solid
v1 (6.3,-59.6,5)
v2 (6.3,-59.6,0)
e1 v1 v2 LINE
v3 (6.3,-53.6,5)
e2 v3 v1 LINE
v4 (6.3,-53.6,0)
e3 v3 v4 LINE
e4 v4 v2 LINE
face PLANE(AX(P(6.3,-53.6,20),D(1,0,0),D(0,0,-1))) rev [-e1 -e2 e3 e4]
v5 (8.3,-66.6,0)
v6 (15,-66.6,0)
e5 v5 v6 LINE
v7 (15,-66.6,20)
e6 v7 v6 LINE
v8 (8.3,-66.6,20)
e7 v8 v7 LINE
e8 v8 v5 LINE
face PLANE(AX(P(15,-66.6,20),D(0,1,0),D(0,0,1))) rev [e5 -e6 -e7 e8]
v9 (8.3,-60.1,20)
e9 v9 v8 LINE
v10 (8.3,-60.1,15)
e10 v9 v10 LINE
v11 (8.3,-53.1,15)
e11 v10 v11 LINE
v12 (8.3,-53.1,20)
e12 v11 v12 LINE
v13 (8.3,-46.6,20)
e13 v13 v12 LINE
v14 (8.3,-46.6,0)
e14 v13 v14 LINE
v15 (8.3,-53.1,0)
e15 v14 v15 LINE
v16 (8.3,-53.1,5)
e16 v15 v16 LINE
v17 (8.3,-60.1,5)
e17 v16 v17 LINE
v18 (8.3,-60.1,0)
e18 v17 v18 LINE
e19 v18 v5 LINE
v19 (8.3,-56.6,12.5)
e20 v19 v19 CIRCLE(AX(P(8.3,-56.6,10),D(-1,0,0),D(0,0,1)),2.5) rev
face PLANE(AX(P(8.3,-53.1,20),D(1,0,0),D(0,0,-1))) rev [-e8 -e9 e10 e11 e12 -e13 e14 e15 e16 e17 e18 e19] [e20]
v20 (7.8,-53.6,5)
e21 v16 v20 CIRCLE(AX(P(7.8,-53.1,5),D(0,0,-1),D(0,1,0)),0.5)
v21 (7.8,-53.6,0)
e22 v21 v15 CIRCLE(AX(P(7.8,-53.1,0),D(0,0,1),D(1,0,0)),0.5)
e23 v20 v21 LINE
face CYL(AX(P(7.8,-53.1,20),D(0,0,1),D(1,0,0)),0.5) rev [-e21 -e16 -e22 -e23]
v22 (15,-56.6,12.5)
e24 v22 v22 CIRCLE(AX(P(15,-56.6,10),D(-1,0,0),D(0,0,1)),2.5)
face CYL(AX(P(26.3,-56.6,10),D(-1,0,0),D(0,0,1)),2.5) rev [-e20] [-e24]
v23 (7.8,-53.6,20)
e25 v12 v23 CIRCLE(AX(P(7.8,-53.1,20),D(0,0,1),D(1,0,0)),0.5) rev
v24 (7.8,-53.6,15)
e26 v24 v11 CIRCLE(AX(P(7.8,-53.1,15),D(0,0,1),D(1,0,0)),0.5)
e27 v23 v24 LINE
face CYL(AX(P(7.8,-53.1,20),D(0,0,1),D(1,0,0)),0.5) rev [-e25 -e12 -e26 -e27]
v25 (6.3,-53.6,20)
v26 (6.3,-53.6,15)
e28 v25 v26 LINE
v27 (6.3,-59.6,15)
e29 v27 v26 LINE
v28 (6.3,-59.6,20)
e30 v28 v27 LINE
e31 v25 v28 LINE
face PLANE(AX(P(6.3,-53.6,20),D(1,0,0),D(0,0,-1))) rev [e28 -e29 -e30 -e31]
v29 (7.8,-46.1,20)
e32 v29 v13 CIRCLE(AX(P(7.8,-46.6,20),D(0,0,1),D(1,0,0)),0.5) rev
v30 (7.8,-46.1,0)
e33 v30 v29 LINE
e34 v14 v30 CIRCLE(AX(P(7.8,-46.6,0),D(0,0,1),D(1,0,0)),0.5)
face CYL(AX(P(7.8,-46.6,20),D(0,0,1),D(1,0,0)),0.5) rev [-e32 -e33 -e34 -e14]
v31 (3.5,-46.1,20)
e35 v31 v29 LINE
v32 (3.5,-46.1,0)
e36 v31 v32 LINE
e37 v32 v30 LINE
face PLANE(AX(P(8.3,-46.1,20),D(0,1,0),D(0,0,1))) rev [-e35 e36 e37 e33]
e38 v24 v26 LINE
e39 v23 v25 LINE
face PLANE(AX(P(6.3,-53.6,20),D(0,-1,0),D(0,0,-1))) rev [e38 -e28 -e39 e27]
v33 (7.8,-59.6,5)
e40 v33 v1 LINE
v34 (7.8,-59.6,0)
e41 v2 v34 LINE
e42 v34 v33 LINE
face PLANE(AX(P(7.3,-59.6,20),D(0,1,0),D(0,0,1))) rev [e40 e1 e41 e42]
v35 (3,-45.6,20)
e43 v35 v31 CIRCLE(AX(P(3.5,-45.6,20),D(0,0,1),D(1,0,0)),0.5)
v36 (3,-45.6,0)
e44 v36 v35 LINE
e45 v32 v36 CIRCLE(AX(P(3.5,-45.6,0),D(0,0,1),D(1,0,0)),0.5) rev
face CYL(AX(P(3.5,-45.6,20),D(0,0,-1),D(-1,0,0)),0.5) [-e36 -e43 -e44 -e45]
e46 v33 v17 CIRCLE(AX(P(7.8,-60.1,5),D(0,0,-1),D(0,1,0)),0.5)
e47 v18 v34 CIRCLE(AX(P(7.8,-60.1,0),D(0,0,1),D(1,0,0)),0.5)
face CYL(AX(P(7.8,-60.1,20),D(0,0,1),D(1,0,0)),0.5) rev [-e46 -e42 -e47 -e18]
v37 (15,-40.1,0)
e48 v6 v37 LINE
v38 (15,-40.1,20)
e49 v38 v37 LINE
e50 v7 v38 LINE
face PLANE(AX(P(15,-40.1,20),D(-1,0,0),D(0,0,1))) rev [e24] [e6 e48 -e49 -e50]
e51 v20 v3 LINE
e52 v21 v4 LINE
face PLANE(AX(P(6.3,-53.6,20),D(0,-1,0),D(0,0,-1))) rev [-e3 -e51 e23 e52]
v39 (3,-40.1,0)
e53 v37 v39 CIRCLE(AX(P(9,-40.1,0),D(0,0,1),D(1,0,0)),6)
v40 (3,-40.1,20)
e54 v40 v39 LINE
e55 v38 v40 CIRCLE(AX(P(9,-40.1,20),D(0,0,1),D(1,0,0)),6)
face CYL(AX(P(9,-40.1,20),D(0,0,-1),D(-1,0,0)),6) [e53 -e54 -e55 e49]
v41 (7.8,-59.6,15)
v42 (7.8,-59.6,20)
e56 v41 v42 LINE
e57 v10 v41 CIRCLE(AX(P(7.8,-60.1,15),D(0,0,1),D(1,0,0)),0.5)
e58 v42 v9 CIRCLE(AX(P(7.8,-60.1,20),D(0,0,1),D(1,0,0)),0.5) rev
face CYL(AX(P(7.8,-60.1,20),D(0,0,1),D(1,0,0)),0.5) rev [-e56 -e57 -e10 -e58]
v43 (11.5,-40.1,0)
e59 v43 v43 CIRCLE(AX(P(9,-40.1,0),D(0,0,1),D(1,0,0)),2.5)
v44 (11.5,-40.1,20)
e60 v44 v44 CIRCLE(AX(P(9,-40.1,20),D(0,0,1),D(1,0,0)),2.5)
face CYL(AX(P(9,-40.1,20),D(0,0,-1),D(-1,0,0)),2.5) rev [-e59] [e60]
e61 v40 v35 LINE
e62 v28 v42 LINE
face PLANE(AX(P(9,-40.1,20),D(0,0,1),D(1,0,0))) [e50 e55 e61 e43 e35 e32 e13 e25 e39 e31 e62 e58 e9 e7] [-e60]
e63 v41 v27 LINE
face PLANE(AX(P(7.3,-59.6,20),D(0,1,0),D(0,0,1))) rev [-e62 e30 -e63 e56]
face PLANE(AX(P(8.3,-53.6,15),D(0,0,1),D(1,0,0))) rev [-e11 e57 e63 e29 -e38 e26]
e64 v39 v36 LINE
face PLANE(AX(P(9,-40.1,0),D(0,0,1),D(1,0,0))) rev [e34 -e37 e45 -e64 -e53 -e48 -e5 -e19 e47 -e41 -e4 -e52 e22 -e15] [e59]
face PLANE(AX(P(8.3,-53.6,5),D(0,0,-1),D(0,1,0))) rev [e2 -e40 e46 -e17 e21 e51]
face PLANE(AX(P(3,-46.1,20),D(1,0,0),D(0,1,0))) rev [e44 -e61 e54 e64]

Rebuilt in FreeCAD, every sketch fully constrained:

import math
import FreeCAD as App
import Part
import Sketcher

V = App.Vector
Q = App.Units.Quantity


def edges_at(feature, points):
    """Names of the edges that pass closest to the given points."""
    edges = feature.Shape.Edges
    near = lambda p: min(range(len(edges)), key=lambda i: edges[i].distToShape(Part.Vertex(*p))[0])
    return sorted({f"Edge{near(p) + 1}" for p in points})

doc = App.newDocument("Part")
body = doc.addObject("PartDesign::Body", "Body")

# Sketch on XY plane
sketch1 = body.newObject("Sketcher::SketchObject", "Sketch")
sketch1.AttachmentSupport = (doc.getObject("XY_Plane"), [""])
sketch1.MapMode = "FlatFace"
sketch1.addGeometry([
    Part.LineSegment(V(6.3, -53.6, 0), V(6.3, -59.6, 0)),  # 0
    Part.LineSegment(V(6.3, -59.6, 0), V(8.3, -59.6, 0)),  # 1
    Part.LineSegment(V(8.3, -59.6, 0), V(8.3, -66.6, 0)),  # 2
    Part.LineSegment(V(8.3, -66.6, 0), V(15, -66.6, 0)),  # 3
    Part.LineSegment(V(15, -66.6, 0), V(15, -40.1, 0)),  # 4
    Part.ArcOfCircle(Part.Circle(V(9, -40.1, 0), V(0, 0, 1), 6), math.radians(0), math.radians(180)),  # 5
    Part.LineSegment(V(3, -40.1, 0), V(3, -46.1, 0)),  # 6
    Part.LineSegment(V(3, -46.1, 0), V(8.3, -46.1, 0)),  # 7
    Part.LineSegment(V(8.3, -46.1, 0), V(8.3, -53.6, 0)),  # 8
    Part.LineSegment(V(8.3, -53.6, 0), V(6.3, -53.6, 0)),  # 9
    Part.Circle(V(9, -40.1, 0), V(0, 0, 1), 2.5),  # 10
], False)
sketch1.addConstraint([
    Sketcher.Constraint("Coincident", 0, 2, 1, 1),
    Sketcher.Constraint("Coincident", 1, 2, 2, 1),
    Sketcher.Constraint("Coincident", 2, 2, 3, 1),
    Sketcher.Constraint("Coincident", 3, 2, 4, 1),
    Sketcher.Constraint("Tangent", 4, 2, 5, 1),
    Sketcher.Constraint("Tangent", 5, 2, 6, 1),
    Sketcher.Constraint("Coincident", 6, 2, 7, 1),
    Sketcher.Constraint("Coincident", 7, 2, 8, 1),
    Sketcher.Constraint("Coincident", 8, 2, 9, 1),
    Sketcher.Constraint("Coincident", 9, 2, 0, 1),
    Sketcher.Constraint("Vertical", 0),
    Sketcher.Constraint("Horizontal", 1),
    Sketcher.Constraint("Vertical", 2),
    Sketcher.Constraint("Horizontal", 3),
    Sketcher.Constraint("Vertical", 4),
    Sketcher.Constraint("Vertical", 6),
    Sketcher.Constraint("Horizontal", 7),
    Sketcher.Constraint("Vertical", 8),
    Sketcher.Constraint("Horizontal", 9),
    Sketcher.Constraint("Coincident", 10, 3, 5, 3),
    Sketcher.Constraint("Vertical", 2, 2, 7, 2),
    Sketcher.Constraint("Equal", 0, 6),
    Sketcher.Constraint("Diameter", 10, Q("5 mm")),
    Sketcher.Constraint("Radius", 5, Q("6 mm")),
    Sketcher.Constraint("DistanceX", 1, 1, 1, 2, Q("2 mm")),
    Sketcher.Constraint("DistanceY", 0, 2, 0, 1, Q("6 mm")),
    Sketcher.Constraint("DistanceY", 2, 2, 2, 1, Q("7 mm")),
    Sketcher.Constraint("DistanceX", 3, 1, 3, 2, Q("6.7 mm")),
    Sketcher.Constraint("DistanceY", 4, 1, 4, 2, Q("26.5 mm")),
    Sketcher.Constraint("DistanceX", -1, 1, 5, 3, Q("9 mm")),
    Sketcher.Constraint("DistanceY", 5, 3, -1, 1, Q("40.1 mm")),
])
pad1 = body.newObject("PartDesign::Pad", "Pad")
pad1.Profile = sketch1
pad1.Length = 20

# Sketch on YZ plane
sketch2 = body.newObject("Sketcher::SketchObject", "Sketch001")
sketch2.AttachmentSupport = (doc.getObject("YZ_Plane"), [""])
sketch2.MapMode = "FlatFace"
sketch2.AttachmentOffset = App.Placement(V(0, 0, 6.3), App.Rotation())
sketch2.addGeometry(Part.Circle(V(-56.6, 10, 0), V(0, 0, 1), 2.5), False)
sketch2.addConstraint([
    Sketcher.Constraint("Diameter", 0, Q("5 mm")),
    Sketcher.Constraint("DistanceY", -1, 1, 0, 3, Q("10 mm")),
    Sketcher.Constraint("DistanceX", 0, 3, -1, 1, Q("56.6 mm")),
])
pocket1 = body.newObject("PartDesign::Pocket", "Pocket")
pocket1.Profile = sketch2
pocket1.Length = 20
pocket1.Reversed = True

# Sketch on YZ plane
sketch3 = body.newObject("Sketcher::SketchObject", "Sketch002")
sketch3.AttachmentSupport = (doc.getObject("YZ_Plane"), [""])
sketch3.MapMode = "FlatFace"
sketch3.AttachmentOffset = App.Placement(V(0, 0, 6.3), App.Rotation())
sketch3.addGeometry([
    Part.LineSegment(V(-54, 5, 0), V(-60, 5, 0)),
    Part.LineSegment(V(-60, 5, 0), V(-60, 15, 0)),
    Part.LineSegment(V(-60, 15, 0), V(-54, 15, 0)),
    Part.LineSegment(V(-54, 15, 0), V(-54, 5, 0)),
], False)
sketch3.addConstraint([
    Sketcher.Constraint("Coincident", 0, 2, 1, 1),
    Sketcher.Constraint("Coincident", 1, 2, 2, 1),
    Sketcher.Constraint("Coincident", 2, 2, 3, 1),
    Sketcher.Constraint("Coincident", 3, 2, 0, 1),
    Sketcher.Constraint("Horizontal", 0),
    Sketcher.Constraint("Vertical", 1),
    Sketcher.Constraint("Horizontal", 2),
    Sketcher.Constraint("Vertical", 3),
    Sketcher.Constraint("DistanceX", 0, 2, 0, 1, Q("6 mm")),
    Sketcher.Constraint("DistanceY", 1, 1, 1, 2, Q("10 mm")),
    Sketcher.Constraint("DistanceY", -1, 1, 0, 2, Q("5 mm")),
    Sketcher.Constraint("DistanceX", 0, 2, -1, 1, Q("59.6 mm")),
])
pocket2 = body.newObject("PartDesign::Pocket", "Pocket001")
pocket2.Profile = sketch3
pocket2.Length = 2
pocket2.Reversed = True
doc.recompute()

fillet = body.newObject("PartDesign::Fillet", "Fillet")
fillet.Base = (pocket2, edges_at(pocket2, [(8.3, -46.1, 10), (3, -46.1, 10)]))
fillet.Radius = 0.5
doc.recompute()

fillet2 = body.newObject("PartDesign::Fillet", "Fillet001")
fillet2.Base = (fillet, edges_at(fillet, [
    (8.3, -59.6, 17.5),
    (8.3, -53.6, 17.5),
    (8.3, -53.6, 2.5),
    (8.3, -59.6, 2.5),
]))
fillet2.Radius = 0.5

doc.recompute()
